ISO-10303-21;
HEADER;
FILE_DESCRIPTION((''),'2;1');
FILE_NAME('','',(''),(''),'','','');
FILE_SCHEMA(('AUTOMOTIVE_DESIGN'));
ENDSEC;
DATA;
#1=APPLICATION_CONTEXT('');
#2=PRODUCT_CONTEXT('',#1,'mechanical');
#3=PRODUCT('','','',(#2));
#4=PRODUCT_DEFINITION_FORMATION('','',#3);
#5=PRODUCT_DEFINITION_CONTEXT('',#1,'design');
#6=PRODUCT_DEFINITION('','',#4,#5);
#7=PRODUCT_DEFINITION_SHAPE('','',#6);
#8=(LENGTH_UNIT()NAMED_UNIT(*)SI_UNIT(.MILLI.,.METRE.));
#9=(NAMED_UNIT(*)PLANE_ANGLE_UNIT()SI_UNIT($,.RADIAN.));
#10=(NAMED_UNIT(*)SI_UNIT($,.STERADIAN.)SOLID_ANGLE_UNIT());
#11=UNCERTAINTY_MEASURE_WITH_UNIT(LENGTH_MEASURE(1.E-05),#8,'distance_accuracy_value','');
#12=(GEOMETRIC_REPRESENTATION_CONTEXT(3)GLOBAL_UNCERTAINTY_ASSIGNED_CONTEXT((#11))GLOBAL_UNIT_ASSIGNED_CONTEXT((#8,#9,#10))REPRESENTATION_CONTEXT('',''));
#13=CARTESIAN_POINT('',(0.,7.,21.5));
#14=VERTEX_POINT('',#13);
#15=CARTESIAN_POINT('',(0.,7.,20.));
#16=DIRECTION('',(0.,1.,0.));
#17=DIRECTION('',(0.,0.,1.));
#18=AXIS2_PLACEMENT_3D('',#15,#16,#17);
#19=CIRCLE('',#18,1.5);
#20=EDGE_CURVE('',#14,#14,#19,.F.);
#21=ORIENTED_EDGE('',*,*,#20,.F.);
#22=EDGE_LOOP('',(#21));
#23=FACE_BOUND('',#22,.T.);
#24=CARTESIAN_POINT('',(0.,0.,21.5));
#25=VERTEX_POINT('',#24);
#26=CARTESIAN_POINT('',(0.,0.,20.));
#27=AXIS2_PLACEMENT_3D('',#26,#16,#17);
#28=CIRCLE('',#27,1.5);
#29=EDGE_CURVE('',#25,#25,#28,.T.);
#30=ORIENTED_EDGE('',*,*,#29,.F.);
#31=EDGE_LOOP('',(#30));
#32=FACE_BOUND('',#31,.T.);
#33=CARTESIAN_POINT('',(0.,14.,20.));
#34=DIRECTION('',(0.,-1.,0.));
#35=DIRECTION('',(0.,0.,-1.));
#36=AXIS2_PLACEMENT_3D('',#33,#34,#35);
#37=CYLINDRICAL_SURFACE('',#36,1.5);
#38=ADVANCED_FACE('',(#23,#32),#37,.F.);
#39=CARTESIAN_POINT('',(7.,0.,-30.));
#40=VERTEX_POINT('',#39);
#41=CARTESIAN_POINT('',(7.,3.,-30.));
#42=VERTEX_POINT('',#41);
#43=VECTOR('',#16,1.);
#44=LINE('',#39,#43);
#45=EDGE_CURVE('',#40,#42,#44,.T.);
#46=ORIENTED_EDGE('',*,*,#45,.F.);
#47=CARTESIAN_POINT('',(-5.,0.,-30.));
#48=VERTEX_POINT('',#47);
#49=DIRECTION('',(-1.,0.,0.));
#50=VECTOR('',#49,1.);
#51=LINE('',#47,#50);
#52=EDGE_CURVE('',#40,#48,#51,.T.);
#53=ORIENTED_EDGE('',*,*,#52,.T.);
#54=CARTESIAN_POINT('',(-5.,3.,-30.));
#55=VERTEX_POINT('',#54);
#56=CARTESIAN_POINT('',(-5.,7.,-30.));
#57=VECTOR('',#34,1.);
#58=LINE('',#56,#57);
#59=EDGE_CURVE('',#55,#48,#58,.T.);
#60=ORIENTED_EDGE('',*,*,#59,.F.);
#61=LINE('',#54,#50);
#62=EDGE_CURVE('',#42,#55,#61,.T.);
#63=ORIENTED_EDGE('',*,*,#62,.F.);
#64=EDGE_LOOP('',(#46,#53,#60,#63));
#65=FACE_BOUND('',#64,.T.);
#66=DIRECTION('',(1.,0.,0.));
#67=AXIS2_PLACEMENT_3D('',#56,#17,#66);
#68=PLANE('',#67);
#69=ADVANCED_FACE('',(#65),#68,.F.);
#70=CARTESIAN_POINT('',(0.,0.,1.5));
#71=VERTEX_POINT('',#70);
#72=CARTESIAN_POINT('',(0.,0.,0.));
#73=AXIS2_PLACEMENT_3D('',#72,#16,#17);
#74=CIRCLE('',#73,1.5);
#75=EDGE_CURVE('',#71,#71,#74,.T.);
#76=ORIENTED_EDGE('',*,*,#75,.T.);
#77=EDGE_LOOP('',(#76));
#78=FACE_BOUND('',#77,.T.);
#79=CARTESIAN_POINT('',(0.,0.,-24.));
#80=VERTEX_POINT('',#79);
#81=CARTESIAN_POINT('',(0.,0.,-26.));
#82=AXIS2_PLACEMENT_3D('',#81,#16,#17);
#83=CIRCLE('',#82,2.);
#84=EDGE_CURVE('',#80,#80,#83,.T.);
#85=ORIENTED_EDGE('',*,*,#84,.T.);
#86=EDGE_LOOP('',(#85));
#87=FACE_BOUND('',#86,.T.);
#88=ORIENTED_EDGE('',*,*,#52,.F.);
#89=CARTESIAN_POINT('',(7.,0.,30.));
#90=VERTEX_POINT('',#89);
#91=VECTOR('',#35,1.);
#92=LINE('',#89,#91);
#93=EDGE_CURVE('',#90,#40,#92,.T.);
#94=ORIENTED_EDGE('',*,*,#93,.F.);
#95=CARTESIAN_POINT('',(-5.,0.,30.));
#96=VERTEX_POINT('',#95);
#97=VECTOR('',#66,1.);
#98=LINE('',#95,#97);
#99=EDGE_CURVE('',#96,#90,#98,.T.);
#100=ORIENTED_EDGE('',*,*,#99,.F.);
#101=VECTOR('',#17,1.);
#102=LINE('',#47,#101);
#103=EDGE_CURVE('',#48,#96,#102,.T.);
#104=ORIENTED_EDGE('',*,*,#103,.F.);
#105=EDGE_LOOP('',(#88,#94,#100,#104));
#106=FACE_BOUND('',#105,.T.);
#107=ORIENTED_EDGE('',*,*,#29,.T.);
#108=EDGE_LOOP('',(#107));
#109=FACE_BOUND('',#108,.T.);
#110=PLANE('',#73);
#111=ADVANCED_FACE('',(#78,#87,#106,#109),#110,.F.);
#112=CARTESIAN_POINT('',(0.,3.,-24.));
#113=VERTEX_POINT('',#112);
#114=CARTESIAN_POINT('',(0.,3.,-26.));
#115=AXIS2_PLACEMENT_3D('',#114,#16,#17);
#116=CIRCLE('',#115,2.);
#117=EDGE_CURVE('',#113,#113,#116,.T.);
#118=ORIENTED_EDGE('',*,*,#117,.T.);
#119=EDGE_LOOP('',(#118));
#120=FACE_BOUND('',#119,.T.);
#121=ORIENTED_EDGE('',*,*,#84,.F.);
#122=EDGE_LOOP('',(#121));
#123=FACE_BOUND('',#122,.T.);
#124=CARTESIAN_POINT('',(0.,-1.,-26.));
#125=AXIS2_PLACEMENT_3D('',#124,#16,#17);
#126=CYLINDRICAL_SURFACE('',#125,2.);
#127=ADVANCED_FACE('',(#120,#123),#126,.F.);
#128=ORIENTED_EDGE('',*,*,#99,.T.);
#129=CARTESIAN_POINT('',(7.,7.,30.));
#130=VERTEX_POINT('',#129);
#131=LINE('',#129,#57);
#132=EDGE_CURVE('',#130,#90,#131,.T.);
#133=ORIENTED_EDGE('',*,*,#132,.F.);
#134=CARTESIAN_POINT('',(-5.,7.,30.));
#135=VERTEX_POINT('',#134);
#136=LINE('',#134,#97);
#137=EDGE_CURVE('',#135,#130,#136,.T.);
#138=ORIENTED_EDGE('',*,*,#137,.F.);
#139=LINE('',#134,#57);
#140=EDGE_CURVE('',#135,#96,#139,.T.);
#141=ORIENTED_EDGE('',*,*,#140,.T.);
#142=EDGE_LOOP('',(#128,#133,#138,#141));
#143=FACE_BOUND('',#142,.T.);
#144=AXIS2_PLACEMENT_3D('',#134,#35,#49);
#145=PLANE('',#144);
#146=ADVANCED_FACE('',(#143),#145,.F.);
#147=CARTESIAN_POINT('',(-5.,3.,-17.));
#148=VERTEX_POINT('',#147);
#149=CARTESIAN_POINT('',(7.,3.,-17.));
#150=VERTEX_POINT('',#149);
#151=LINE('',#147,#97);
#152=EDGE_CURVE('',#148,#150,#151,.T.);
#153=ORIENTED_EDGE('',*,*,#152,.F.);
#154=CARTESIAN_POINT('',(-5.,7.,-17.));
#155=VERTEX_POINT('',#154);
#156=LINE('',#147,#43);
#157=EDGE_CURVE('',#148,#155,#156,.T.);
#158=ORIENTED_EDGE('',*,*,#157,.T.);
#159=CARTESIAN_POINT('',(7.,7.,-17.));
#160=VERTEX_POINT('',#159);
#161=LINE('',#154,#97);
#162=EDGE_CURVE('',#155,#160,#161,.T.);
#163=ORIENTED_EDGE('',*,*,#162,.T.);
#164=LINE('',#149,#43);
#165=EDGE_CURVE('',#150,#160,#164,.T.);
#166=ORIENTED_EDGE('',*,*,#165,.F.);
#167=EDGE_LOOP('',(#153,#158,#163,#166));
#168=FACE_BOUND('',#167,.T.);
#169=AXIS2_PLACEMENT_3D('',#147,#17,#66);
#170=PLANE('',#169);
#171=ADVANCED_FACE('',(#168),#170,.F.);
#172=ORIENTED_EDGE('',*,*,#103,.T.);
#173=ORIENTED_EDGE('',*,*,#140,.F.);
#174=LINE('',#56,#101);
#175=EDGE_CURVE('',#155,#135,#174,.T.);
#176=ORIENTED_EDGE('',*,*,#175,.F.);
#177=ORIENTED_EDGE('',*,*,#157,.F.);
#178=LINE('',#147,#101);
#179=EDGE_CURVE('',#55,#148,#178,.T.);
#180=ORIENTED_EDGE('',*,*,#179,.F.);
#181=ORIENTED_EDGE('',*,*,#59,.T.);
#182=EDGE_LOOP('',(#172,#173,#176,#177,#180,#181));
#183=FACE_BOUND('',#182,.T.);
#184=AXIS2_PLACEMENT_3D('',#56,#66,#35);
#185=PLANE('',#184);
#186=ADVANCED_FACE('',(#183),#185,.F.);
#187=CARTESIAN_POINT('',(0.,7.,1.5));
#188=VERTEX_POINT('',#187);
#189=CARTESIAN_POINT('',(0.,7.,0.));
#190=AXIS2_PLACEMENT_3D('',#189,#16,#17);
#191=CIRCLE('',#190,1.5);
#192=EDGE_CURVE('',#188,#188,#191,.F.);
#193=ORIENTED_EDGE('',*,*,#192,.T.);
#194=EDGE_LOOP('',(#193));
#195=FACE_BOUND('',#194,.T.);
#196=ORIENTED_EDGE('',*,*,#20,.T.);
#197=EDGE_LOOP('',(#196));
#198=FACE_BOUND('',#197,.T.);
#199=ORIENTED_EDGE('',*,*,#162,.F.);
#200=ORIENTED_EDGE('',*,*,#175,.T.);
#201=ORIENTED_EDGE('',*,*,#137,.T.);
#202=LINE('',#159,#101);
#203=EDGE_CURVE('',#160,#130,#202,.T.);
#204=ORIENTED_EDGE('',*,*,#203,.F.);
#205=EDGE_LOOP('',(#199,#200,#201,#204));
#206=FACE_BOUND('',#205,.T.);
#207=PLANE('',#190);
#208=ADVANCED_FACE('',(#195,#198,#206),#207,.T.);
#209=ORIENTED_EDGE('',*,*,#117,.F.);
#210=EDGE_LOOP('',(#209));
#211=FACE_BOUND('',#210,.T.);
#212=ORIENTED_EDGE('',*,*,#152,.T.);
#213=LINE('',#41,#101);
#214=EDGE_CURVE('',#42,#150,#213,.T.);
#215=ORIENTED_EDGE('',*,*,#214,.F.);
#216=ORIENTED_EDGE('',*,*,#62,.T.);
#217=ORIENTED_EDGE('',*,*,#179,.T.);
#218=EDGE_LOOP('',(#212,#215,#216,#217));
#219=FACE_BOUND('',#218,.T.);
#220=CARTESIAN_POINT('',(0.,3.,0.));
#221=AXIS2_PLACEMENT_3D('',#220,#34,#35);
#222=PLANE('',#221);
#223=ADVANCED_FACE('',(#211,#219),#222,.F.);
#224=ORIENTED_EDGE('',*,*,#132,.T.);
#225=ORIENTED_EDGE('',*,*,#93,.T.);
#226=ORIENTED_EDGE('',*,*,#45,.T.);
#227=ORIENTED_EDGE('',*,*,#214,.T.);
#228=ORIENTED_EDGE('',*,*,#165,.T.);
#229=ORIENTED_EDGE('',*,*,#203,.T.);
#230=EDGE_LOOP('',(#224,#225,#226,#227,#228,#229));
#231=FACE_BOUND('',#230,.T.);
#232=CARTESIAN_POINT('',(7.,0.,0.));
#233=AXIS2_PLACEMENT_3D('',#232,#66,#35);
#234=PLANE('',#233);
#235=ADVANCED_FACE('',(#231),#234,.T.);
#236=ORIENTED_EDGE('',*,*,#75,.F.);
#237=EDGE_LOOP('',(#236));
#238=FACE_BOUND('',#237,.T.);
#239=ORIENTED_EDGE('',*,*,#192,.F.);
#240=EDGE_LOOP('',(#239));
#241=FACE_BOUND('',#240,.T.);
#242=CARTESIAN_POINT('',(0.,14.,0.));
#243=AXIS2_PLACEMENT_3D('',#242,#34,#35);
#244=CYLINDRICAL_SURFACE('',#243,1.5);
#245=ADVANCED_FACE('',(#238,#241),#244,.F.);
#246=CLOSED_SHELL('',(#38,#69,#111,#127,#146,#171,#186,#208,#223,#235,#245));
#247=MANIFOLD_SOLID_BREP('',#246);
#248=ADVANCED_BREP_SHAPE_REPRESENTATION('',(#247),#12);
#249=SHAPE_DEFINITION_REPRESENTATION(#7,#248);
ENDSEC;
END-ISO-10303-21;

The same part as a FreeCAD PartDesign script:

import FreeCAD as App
import Part
import Sketcher
from FreeCAD import Vector
Q = App.Units.Quantity

doc = App.newDocument("Part")
params = doc.addObject("Spreadsheet::Sheet", "Params")
for row, (alias, value) in enumerate([
    ("sketch1_width", "10 mm"),
    ("sketch1_height", "60 mm"),
    ("pad1_length", "7 mm"),
    ("sketch2_width", "10 mm"),
    ("sketch2_height", "13 mm"),
    ("pocket1_length", "4 mm"),
    ("sketch3_diameter", "4 mm"),
    ("pocket2_length", "4 mm"),
    ("sketch4_diameter", "3 mm"),
    ("pocket3_length", "14 mm"),
    ("sketch5_width", "7 mm"),
    ("sketch5_width2", "3 mm"),
    ("sketch5_height", "60 mm"),
    ("sketch5_height2", "13 mm"),
    ("pad2_length", "2 mm"),
], start=1):
    params.set(f"A{row}", alias)
    params.set(f"B{row}", "=" + value)
    params.setAlias(f"B{row}", alias)

body = doc.addObject("PartDesign::Body", "Body")

# Sketch on XZ plane
sketch1 = doc.addObject("Sketcher::SketchObject", "Sketch")
body.addObject(sketch1)
sketch1.AttachmentSupport = (doc.XZ_Plane, [""])
sketch1.MapMode = "FlatFace"
sketch1.addGeometry([
    Part.LineSegment(Vector(-5, -30, 0), Vector(-5, 30, 0)),
    Part.LineSegment(Vector(-5, 30, 0), Vector(5, 30, 0)),
    Part.LineSegment(Vector(5, 30, 0), Vector(5, -30, 0)),
    Part.LineSegment(Vector(5, -30, 0), Vector(-5, -30, 0)),
], False)
sketch1.addConstraint([
    Sketcher.Constraint("Coincident", 0, 2, 1, 1),
    Sketcher.Constraint("Coincident", 1, 2, 2, 1),
    Sketcher.Constraint("Coincident", 2, 2, 3, 1),
    Sketcher.Constraint("Coincident", 3, 2, 0, 1),
    Sketcher.Constraint("Vertical", 0),
    Sketcher.Constraint("Horizontal", 1),
    Sketcher.Constraint("Vertical", 2),
    Sketcher.Constraint("Horizontal", 3),
    Sketcher.Constraint("Symmetric", 0, 2, 2, 2, -1, 1),
    Sketcher.Constraint("DistanceX", 1, 1, 1, 2, Q("10 mm")),
    Sketcher.Constraint("DistanceY", 0, 1, 0, 2, Q("60 mm")),
])
sketch1.setExpression("Constraints[9]", "Params.sketch1_width")
sketch1.setExpression("Constraints[10]", "Params.sketch1_height")
pad1 = doc.addObject("PartDesign::Pad", "Pad")
body.addObject(pad1)
pad1.Profile = sketch1
pad1.setExpression("Length", "Params.pad1_length")
pad1.Reversed = True

# Sketch on XZ plane
sketch2 = doc.addObject("Sketcher::SketchObject", "Sketch001")
body.addObject(sketch2)
sketch2.AttachmentSupport = (doc.XZ_Plane, [""])
sketch2.MapMode = "FlatFace"
sketch2.AttachmentOffset = App.Placement(Vector(0, 0, -7), App.Rotation())
sketch2.addGeometry([
    Part.LineSegment(Vector(-5, -30, 0), Vector(-5, -17, 0)),
    Part.LineSegment(Vector(-5, -17, 0), Vector(5, -17, 0)),
    Part.LineSegment(Vector(5, -17, 0), Vector(5, -30, 0)),
    Part.LineSegment(Vector(5, -30, 0), Vector(-5, -30, 0)),
], False)
sketch2.addConstraint([
    Sketcher.Constraint("Coincident", 0, 2, 1, 1),
    Sketcher.Constraint("Coincident", 1, 2, 2, 1),
    Sketcher.Constraint("Coincident", 2, 2, 3, 1),
    Sketcher.Constraint("Coincident", 3, 2, 0, 1),
    Sketcher.Constraint("Vertical", 0),
    Sketcher.Constraint("Horizontal", 1),
    Sketcher.Constraint("Vertical", 2),
    Sketcher.Constraint("Horizontal", 3),
    Sketcher.Constraint("DistanceX", 1, 1, 1, 2, Q("10 mm")),
    Sketcher.Constraint("DistanceY", 0, 1, 0, 2, Q("13 mm")),
    Sketcher.Constraint("DistanceX", 0, 2, -1, 1, Q("5 mm")),
    Sketcher.Constraint("DistanceY", 0, 2, -1, 1, Q("17 mm")),
])
sketch2.setExpression("Constraints[8]", "Params.sketch2_width")
sketch2.setExpression("Constraints[9]", "Params.sketch2_height")
pocket1 = doc.addObject("PartDesign::Pocket", "Pocket")
body.addObject(pocket1)
pocket1.Profile = sketch2
pocket1.setExpression("Length", "Params.pocket1_length")
pocket1.Reversed = True

# Sketch on XZ plane
sketch3 = doc.addObject("Sketcher::SketchObject", "Sketch002")
body.addObject(sketch3)
sketch3.AttachmentSupport = (doc.XZ_Plane, [""])
sketch3.MapMode = "FlatFace"
sketch3.AttachmentOffset = App.Placement(Vector(0, 0, -3), App.Rotation())
sketch3.addGeometry(Part.Circle(Vector(0, -26, 0), Vector(0, 0, 1), 2), False)
sketch3.addConstraint([
    Sketcher.Constraint("PointOnObject", 0, 3, -2),
    Sketcher.Constraint("Diameter", 0, Q("4 mm")),
    Sketcher.Constraint("DistanceY", 0, 3, -1, 1, Q("26 mm")),
])
sketch3.setExpression("Constraints[1]", "Params.sketch3_diameter")
pocket2 = doc.addObject("PartDesign::Pocket", "Pocket001")
body.addObject(pocket2)
pocket2.Profile = sketch3
pocket2.setExpression("Length", "Params.pocket2_length")
pocket2.Reversed = True

# Sketch on XZ plane
sketch4 = doc.addObject("Sketcher::SketchObject", "Sketch003")
body.addObject(sketch4)
sketch4.AttachmentSupport = (doc.XZ_Plane, [""])
sketch4.MapMode = "FlatFace"
sketch4.addGeometry([
    Part.Circle(Vector(0, 0, 0), Vector(0, 0, 1), 1.5),
    Part.Circle(Vector(0, 20, 0), Vector(0, 0, 1), 1.5),
], False)
sketch4.addConstraint([
    Sketcher.Constraint("Coincident", 0, 3, -1, 1),
    Sketcher.Constraint("Equal", 0, 1),
    Sketcher.Constraint("PointOnObject", 1, 3, -2),
    Sketcher.Constraint("Diameter", 0, Q("3 mm")),
    Sketcher.Constraint("DistanceY", -1, 1, 1, 3, Q("20 mm")),
])
sketch4.setExpression("Constraints[3]", "Params.sketch4_diameter")
pocket3 = doc.addObject("PartDesign::Pocket", "Pocket002")
body.addObject(pocket3)
pocket3.Profile = sketch4
pocket3.setExpression("Length", "Params.pocket3_length")

# Sketch on YZ plane
sketch5 = doc.addObject("Sketcher::SketchObject", "Sketch004")
body.addObject(sketch5)
sketch5.AttachmentSupport = (doc.YZ_Plane, [""])
sketch5.MapMode = "FlatFace"
sketch5.AttachmentOffset = App.Placement(Vector(0, 0, 5), App.Rotation())
sketch5.addGeometry([
    Part.LineSegment(Vector(7, 30, 0), Vector(0, 30, 0)),  # 0
    Part.LineSegment(Vector(0, 30, 0), Vector(0, -30, 0)),  # 1
    Part.LineSegment(Vector(0, -30, 0), Vector(3, -30, 0)),  # 2
    Part.LineSegment(Vector(3, -30, 0), Vector(3, -17, 0)),  # 3
    Part.LineSegment(Vector(3, -17, 0), Vector(7, -17, 0)),  # 4
    Part.LineSegment(Vector(7, -17, 0), Vector(7, 30, 0)),  # 5
], False)
sketch5.addConstraint([
    Sketcher.Constraint("Coincident", 0, 2, 1, 1),
    Sketcher.Constraint("Coincident", 1, 2, 2, 1),
    Sketcher.Constraint("Coincident", 2, 2, 3, 1),
    Sketcher.Constraint("Coincident", 3, 2, 4, 1),
    Sketcher.Constraint("Coincident", 4, 2, 5, 1),
    Sketcher.Constraint("Coincident", 5, 2, 0, 1),
    Sketcher.Constraint("Horizontal", 0),
    Sketcher.Constraint("Vertical", 1),
    Sketcher.Constraint("Horizontal", 2),
    Sketcher.Constraint("Vertical", 3),
    Sketcher.Constraint("Horizontal", 4),
    Sketcher.Constraint("Vertical", 5),
    Sketcher.Constraint("Symmetric", 0, 2, 1, 2, -1, 1),
    Sketcher.Constraint("DistanceX", 0, 2, 0, 1, Q("7 mm")),
    Sketcher.Constraint("DistanceX", 2, 1, 2, 2, Q("3 mm")),
    Sketcher.Constraint("DistanceY", 1, 2, 1, 1, Q("60 mm")),
    Sketcher.Constraint("DistanceY", 3, 1, 3, 2, Q("13 mm")),
])
sketch5.setExpression("Constraints[13]", "Params.sketch5_width")
sketch5.setExpression("Constraints[14]", "Params.sketch5_width2")
sketch5.setExpression("Constraints[15]", "Params.sketch5_height")
sketch5.setExpression("Constraints[16]", "Params.sketch5_height2")
pad2 = doc.addObject("PartDesign::Pad", "Pad001")
body.addObject(pad2)
pad2.Profile = sketch5
pad2.setExpression("Length", "Params.pad2_length")

doc.recompute()
